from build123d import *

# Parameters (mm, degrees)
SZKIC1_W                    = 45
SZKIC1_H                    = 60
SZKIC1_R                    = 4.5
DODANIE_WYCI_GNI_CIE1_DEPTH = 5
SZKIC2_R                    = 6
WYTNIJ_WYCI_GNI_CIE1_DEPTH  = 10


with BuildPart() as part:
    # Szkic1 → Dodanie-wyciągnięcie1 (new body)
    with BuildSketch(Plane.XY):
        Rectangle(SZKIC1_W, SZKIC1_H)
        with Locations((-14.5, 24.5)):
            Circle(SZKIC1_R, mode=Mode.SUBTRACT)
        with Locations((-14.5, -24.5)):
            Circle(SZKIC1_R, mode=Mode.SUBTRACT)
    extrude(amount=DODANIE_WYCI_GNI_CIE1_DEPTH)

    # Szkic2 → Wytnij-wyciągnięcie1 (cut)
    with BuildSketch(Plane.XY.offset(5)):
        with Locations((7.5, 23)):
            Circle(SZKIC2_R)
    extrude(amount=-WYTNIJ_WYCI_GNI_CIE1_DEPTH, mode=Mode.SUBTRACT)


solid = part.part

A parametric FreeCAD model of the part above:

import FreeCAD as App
import Part
import Sketcher
Q = App.Units.Quantity

doc = App.newDocument("Part")
body = doc.addObject("PartDesign::Body", "Body")

sketch1 = body.newObject("Sketcher::SketchObject", "Sketch")
sketch1.AttachmentSupport = (doc.getObject("XY_Plane"), [""])
sketch1.MapMode = "FlatFace"
sketch1.addGeometry([
    Part.LineSegment(App.Vector(-22.5, 30, 0), App.Vector(-22.5, -30, 0)),
    Part.LineSegment(App.Vector(-22.5, -30, 0), App.Vector(22.5, -30, 0)),
    Part.LineSegment(App.Vector(22.5, -30, 0), App.Vector(22.5, 30, 0)),
    Part.LineSegment(App.Vector(22.5, 30, 0), App.Vector(-22.5, 30, 0)),
    Part.Circle(App.Vector(-14.5, -24.5, 0), App.Vector(0, 0, 1), 4.5),
    Part.Circle(App.Vector(-14.5, 24.5, 0), App.Vector(0, 0, 1), 4.5),
], False)
sketch1.addConstraint([
    Sketcher.Constraint("Coincident", 0, 2, 1, 1),
    Sketcher.Constraint("Coincident", 1, 2, 2, 1),
    Sketcher.Constraint("Coincident", 2, 2, 3, 1),
    Sketcher.Constraint("Coincident", 3, 2, 0, 1),
    Sketcher.Constraint("Vertical", 0),
    Sketcher.Constraint("Horizontal", 1),
    Sketcher.Constraint("Vertical", 2),
    Sketcher.Constraint("Horizontal", 3),
    Sketcher.Constraint("Equal", 4, 5),
    Sketcher.Constraint("Symmetric", 0, 2, 2, 2, -1, 1),
    Sketcher.Constraint("Symmetric", 4, 3, 5, 3, -1),
    Sketcher.Constraint("Diameter", 4, Q("9 mm")),
    Sketcher.Constraint("DistanceX", 1, 1, 1, 2, Q("45 mm")),
    Sketcher.Constraint("DistanceY", 0, 2, 0, 1, Q("60 mm")),
    Sketcher.Constraint("DistanceY", 4, 3, 5, 3, Q("49 mm")),
    Sketcher.Constraint("DistanceX", 0, 2, 4, 3, Q("8 mm")),
])
pad1 = body.newObject("PartDesign::Pad", "Pad")
pad1.Profile = sketch1
pad1.Length = 5

sketch2 = body.newObject("Sketcher::SketchObject", "Sketch001")
sketch2.AttachmentSupport = (doc.getObject("XY_Plane"), [""])
sketch2.MapMode = "FlatFace"
sketch2.AttachmentOffset = App.Placement(App.Vector(0, 0, 5), App.Rotation())
sketch2.addGeometry(Part.Circle(App.Vector(8, 23, 0), App.Vector(0, 0, 1), 6), False)
sketch2.addConstraint([
    Sketcher.Constraint("Diameter", 0, Q("12 mm")),
    Sketcher.Constraint("DistanceY", -1, 1, 0, 3, Q("23 mm")),
    Sketcher.Constraint("DistanceX", -1, 1, 0, 3, Q("7.5 mm")),
])
pocket1 = body.newObject("PartDesign::Pocket", "Pocket")
pocket1.Profile = sketch2
pocket1.Length = 10

doc.recompute()
